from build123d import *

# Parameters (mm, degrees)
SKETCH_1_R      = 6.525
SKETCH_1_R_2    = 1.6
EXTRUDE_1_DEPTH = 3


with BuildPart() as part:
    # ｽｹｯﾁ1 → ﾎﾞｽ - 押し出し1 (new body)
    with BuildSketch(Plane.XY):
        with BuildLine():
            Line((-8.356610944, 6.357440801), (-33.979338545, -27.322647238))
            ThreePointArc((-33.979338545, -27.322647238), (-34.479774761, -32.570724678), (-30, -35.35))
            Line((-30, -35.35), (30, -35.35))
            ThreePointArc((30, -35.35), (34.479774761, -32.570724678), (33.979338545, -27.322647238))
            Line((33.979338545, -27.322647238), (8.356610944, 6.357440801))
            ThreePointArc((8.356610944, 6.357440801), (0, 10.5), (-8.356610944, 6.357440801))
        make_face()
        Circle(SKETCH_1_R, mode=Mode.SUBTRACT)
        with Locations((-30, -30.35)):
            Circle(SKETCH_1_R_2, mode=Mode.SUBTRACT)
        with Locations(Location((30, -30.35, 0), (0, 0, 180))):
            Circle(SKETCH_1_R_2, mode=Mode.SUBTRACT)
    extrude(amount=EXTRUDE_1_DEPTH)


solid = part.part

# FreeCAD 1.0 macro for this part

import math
import FreeCAD as App
import Part
import Sketcher
from FreeCAD import Vector
Q = App.Units.Quantity

doc = App.newDocument("Part")
body = doc.addObject("PartDesign::Body", "Body")

# Sketch on XY plane
sketch1 = body.newObject("Sketcher::SketchObject", "Sketch")
sketch1.AttachmentSupport = (doc.getObject("XY_Plane"), [""])
sketch1.MapMode = "FlatFace"
sketch1.addGeometry(Part.LineSegment(Vector(-8.4, 6.4, 0), Vector(-34, -27.3, 0)), False)
sketch1.addGeometry(Part.ArcOfCircle(Part.Circle(Vector(-30, -30.4, 0), Vector(0, 0, 1), 5), math.radians(143), math.radians(270)), False)
sketch1.addGeometry(Part.LineSegment(Vector(-30, -35.4, 0), Vector(30, -35.4, 0)), False)
sketch1.addGeometry(Part.ArcOfCircle(Part.Circle(Vector(30, -30.4, 0), Vector(0, 0, 1), 5), math.radians(-90), math.radians(37)), False)
sketch1.addGeometry(Part.LineSegment(Vector(34, -27.3, 0), Vector(8.4, 6.4, 0)), False)
sketch1.addGeometry(Part.ArcOfCircle(Part.Circle(Vector(0, 0, 0), Vector(0, 0, 1), 10.5), math.radians(37), math.radians(143)), False)
sketch1.addGeometry(Part.Circle(Vector(-30, -30.4, 0), Vector(0, 0, 1), 1.6), False)
sketch1.addGeometry(Part.Circle(Vector(30, -30.4, 0), Vector(0, 0, 1), 1.6), False)
sketch1.addGeometry(Part.Circle(Vector(0, 0, 0), Vector(0, 0, 1), 6.5), False)
sketch1.addConstraint(Sketcher.Constraint("Tangent", 0, 2, 1, 1))
sketch1.addConstraint(Sketcher.Constraint("Tangent", 1, 2, 2, 1))
sketch1.addConstraint(Sketcher.Constraint("Tangent", 2, 2, 3, 1))
sketch1.addConstraint(Sketcher.Constraint("Tangent", 3, 2, 4, 1))
sketch1.addConstraint(Sketcher.Constraint("Tangent", 4, 2, 5, 1))
sketch1.addConstraint(Sketcher.Constraint("Tangent", 5, 2, 0, 1))
sketch1.addConstraint(Sketcher.Constraint("Horizontal", 2))
sketch1.addConstraint(Sketcher.Constraint("Coincident", 5, 3, -1, 1))
sketch1.addConstraint(Sketcher.Constraint("Coincident", 8, 3, -1, 1))
sketch1.addConstraint(Sketcher.Constraint("Coincident", 6, 3, 1, 3))
sketch1.addConstraint(Sketcher.Constraint("Coincident", 7, 3, 3, 3))
sketch1.addConstraint(Sketcher.Constraint("Equal", 1, 3))
sketch1.addConstraint(Sketcher.Constraint("Equal", 6, 7))
sketch1.addConstraint(Sketcher.Constraint("Horizontal", 0, 2, 3, 2))
sketch1.addConstraint(Sketcher.Constraint("Radius", 1, Q("5 mm")))
sketch1.addConstraint(Sketcher.Constraint("Diameter", 6, Q("3.2 mm")))
sketch1.addConstraint(Sketcher.Constraint("Radius", 5, Q("10.5 mm")))
sketch1.addConstraint(Sketcher.Constraint("Diameter", 8, Q("13.05 mm")))
sketch1.addConstraint(Sketcher.Constraint("DistanceX", 2, 1, 2, 2, Q("60 mm")))
sketch1.addConstraint(Sketcher.Constraint("DistanceY", 1, 3, -1, 1, Q("30.35 mm")))
pad1 = body.newObject("PartDesign::Pad", "Pad")
pad1.Profile = sketch1
pad1.Length = 3

doc.recompute()
